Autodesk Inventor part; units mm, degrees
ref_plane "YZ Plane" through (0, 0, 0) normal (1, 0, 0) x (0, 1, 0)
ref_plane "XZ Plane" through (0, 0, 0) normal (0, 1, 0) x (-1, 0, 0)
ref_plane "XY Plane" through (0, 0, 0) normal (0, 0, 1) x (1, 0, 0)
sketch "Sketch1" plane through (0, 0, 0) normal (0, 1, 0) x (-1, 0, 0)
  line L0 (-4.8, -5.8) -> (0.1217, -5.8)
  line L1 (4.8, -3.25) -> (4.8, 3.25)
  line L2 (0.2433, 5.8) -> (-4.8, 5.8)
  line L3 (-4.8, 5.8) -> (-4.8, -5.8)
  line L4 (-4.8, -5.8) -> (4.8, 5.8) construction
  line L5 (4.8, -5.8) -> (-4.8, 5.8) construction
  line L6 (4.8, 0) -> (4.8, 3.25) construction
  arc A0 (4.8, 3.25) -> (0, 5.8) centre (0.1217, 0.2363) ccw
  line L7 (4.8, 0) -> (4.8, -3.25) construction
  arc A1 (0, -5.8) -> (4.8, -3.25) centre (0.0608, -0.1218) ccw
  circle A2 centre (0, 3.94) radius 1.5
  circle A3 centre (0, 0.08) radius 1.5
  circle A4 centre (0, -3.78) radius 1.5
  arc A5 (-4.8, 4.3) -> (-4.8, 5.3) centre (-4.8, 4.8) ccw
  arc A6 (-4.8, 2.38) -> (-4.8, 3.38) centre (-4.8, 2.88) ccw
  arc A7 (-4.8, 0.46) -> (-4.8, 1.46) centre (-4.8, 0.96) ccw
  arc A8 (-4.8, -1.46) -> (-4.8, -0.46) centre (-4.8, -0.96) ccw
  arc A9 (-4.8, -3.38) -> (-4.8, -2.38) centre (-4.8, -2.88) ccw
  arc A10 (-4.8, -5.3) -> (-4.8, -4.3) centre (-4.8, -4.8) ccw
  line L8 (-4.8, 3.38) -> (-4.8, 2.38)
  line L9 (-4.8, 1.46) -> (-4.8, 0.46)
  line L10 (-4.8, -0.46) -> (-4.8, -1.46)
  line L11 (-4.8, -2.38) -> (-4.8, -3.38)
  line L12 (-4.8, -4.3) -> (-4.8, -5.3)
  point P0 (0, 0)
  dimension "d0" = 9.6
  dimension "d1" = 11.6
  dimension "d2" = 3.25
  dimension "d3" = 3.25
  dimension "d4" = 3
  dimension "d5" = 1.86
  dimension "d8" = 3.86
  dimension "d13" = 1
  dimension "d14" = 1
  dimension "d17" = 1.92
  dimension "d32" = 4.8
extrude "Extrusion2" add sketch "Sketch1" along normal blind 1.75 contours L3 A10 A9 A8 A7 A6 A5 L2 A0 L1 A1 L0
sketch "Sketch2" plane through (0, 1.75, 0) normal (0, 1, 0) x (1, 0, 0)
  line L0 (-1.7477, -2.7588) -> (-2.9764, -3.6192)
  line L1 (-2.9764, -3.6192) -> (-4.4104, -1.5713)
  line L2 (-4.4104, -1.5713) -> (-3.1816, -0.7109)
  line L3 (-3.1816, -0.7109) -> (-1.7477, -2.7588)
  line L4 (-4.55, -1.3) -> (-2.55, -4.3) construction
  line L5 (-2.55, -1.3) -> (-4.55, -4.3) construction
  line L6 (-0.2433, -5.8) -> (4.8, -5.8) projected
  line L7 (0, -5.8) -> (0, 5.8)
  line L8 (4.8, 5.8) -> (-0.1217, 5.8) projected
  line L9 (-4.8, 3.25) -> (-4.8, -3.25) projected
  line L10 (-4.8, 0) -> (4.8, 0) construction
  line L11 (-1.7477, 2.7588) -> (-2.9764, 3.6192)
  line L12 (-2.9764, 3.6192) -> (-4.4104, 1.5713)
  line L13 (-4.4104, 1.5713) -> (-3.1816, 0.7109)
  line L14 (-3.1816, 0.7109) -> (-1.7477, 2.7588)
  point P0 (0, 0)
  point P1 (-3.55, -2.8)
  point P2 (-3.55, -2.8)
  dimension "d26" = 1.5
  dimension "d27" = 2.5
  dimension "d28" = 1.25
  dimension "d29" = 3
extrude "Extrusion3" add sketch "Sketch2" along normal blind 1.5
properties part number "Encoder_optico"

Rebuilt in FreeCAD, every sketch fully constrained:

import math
import FreeCAD as App
import Part
import Sketcher

V = App.Vector
Q = App.Units.Quantity

doc = App.newDocument("Part")
body = doc.addObject("PartDesign::Body", "Body")

# Sketch on XZ plane
sketch1 = body.newObject("Sketcher::SketchObject", "Sketch")
sketch1.AttachmentSupport = (doc.getObject("XZ_Plane"), [""])
sketch1.MapMode = "FlatFace"
sketch1.addGeometry(Part.LineSegment(V(4.8, -5.3, 0), V(4.8, -5.8, 0)), False)
sketch1.addGeometry(Part.LineSegment(V(4.8, -5.8, 0), V(-0.1217, -5.8, 0)), False)
sketch1.addGeometry(Part.ArcOfCircle(Part.Circle(V(-0.0608, -0.1218, 0), V(0, 0, 1), 5.678526), math.radians(-146.572427), math.radians(-90.614487)), False)
sketch1.addGeometry(Part.LineSegment(V(-4.8, -3.25, 0), V(-4.8, 3.25, 0)), False)
sketch1.addGeometry(Part.ArcOfCircle(Part.Circle(V(-0.1217, 0.2363, 0), V(0, 0, 1), 5.564969), math.radians(91.252055), math.radians(147.210892)), False)
sketch1.addGeometry(Part.LineSegment(V(-0.2433, 5.8, 0), V(4.8, 5.8, 0)), False)
sketch1.addGeometry(Part.LineSegment(V(4.8, 5.8, 0), V(4.8, 5.3, 0)), False)
sketch1.addGeometry(Part.ArcOfCircle(Part.Circle(V(4.8, 4.8, 0), V(0, 0, 1), 0.5), math.radians(90), math.radians(270)), False)
sketch1.addGeometry(Part.LineSegment(V(4.8, 4.3, 0), V(4.8, 3.38, 0)), False)
sketch1.addGeometry(Part.ArcOfCircle(Part.Circle(V(4.8, 2.88, 0), V(0, 0, 1), 0.5), math.radians(90), math.radians(270)), False)
sketch1.addGeometry(Part.LineSegment(V(4.8, 2.38, 0), V(4.8, 1.46, 0)), False)
sketch1.addGeometry(Part.ArcOfCircle(Part.Circle(V(4.8, 0.96, 0), V(0, 0, 1), 0.5), math.radians(90), math.radians(270)), False)
sketch1.addGeometry(Part.LineSegment(V(4.8, 0.46, 0), V(4.8, -0.46, 0)), False)
sketch1.addGeometry(Part.ArcOfCircle(Part.Circle(V(4.8, -0.96, 0), V(0, 0, 1), 0.5), math.radians(90), math.radians(270)), False)
sketch1.addGeometry(Part.LineSegment(V(4.8, -1.46, 0), V(4.8, -2.38, 0)), False)
sketch1.addGeometry(Part.ArcOfCircle(Part.Circle(V(4.8, -2.88, 0), V(0, 0, 1), 0.5), math.radians(90), math.radians(270)), False)
sketch1.addGeometry(Part.LineSegment(V(4.8, -3.38, 0), V(4.8, -4.3, 0)), False)
sketch1.addGeometry(Part.ArcOfCircle(Part.Circle(V(4.8, -4.8, 0), V(0, 0, 1), 0.5), math.radians(90), math.radians(270)), False)
sketch1.addGeometry(Part.Circle(V(0, -3.78, 0), V(0, 0, 1), 1.5), False)
sketch1.addGeometry(Part.Circle(V(0, 0.08, 0), V(0, 0, 1), 1.5), False)
sketch1.addGeometry(Part.Circle(V(0, 3.94, 0), V(0, 0, 1), 1.5), False)
sketch1.addConstraint(Sketcher.Constraint("Coincident", 0, 2, 1, 1))
sketch1.addConstraint(Sketcher.Constraint("Coincident", 1, 2, 2, 2))
sketch1.addConstraint(Sketcher.Constraint("Coincident", 2, 1, 3, 1))
sketch1.addConstraint(Sketcher.Constraint("Coincident", 3, 2, 4, 2))
sketch1.addConstraint(Sketcher.Constraint("Coincident", 4, 1, 5, 1))
sketch1.addConstraint(Sketcher.Constraint("Coincident", 5, 2, 6, 1))
sketch1.addConstraint(Sketcher.Constraint("Coincident", 6, 2, 7, 1))
sketch1.addConstraint(Sketcher.Constraint("Coincident", 7, 2, 8, 1))
sketch1.addConstraint(Sketcher.Constraint("Coincident", 8, 2, 9, 1))
sketch1.addConstraint(Sketcher.Constraint("Coincident", 9, 2, 10, 1))
sketch1.addConstraint(Sketcher.Constraint("Coincident", 10, 2, 11, 1))
sketch1.addConstraint(Sketcher.Constraint("Coincident", 11, 2, 12, 1))
sketch1.addConstraint(Sketcher.Constraint("Coincident", 12, 2, 13, 1))
sketch1.addConstraint(Sketcher.Constraint("Coincident", 13, 2, 14, 1))
sketch1.addConstraint(Sketcher.Constraint("Coincident", 14, 2, 15, 1))
sketch1.addConstraint(Sketcher.Constraint("Coincident", 15, 2, 16, 1))
sketch1.addConstraint(Sketcher.Constraint("Coincident", 16, 2, 17, 1))
sketch1.addConstraint(Sketcher.Constraint("Coincident", 17, 2, 0, 1))
sketch1.addConstraint(Sketcher.Constraint("Vertical", 0))
sketch1.addConstraint(Sketcher.Constraint("Horizontal", 1))
sketch1.addConstraint(Sketcher.Constraint("Vertical", 3))
sketch1.addConstraint(Sketcher.Constraint("Horizontal", 5))
sketch1.addConstraint(Sketcher.Constraint("Vertical", 6))
sketch1.addConstraint(Sketcher.Constraint("Vertical", 8))
sketch1.addConstraint(Sketcher.Constraint("Vertical", 10))
sketch1.addConstraint(Sketcher.Constraint("Vertical", 12))
sketch1.addConstraint(Sketcher.Constraint("Vertical", 14))
sketch1.addConstraint(Sketcher.Constraint("Vertical", 16))
sketch1.addConstraint(Sketcher.Constraint("PointOnObject", 18, 3, -2))
sketch1.addConstraint(Sketcher.Constraint("PointOnObject", 19, 3, -2))
sketch1.addConstraint(Sketcher.Constraint("PointOnObject", 20, 3, -2))
sketch1.addConstraint(Sketcher.Constraint("Diameter", 18, Q("3 mm")))
sketch1.addConstraint(Sketcher.Constraint("Diameter", 19, Q("3 mm")))
sketch1.addConstraint(Sketcher.Constraint("Diameter", 20, Q("3 mm")))
sketch1.addConstraint(Sketcher.Constraint("Radius", 7, Q("0.5 mm")))
sketch1.addConstraint(Sketcher.Constraint("Radius", 9, Q("0.5 mm")))
sketch1.addConstraint(Sketcher.Constraint("Radius", 11, Q("0.5 mm")))
sketch1.addConstraint(Sketcher.Constraint("Radius", 13, Q("0.5 mm")))
sketch1.addConstraint(Sketcher.Constraint("Radius", 15, Q("0.5 mm")))
sketch1.addConstraint(Sketcher.Constraint("Radius", 17, Q("0.5 mm")))
sketch1.addConstraint(Sketcher.Constraint("DistanceY", 0, 2, 17, 3, Q("1 mm")))
sketch1.addConstraint(Sketcher.Constraint("DistanceY", 7, 3, 4, 1, Q("1 mm")))
sketch1.addConstraint(Sketcher.Constraint("DistanceX", -1, 1, 7, 3, Q("4.8 mm")))
sketch1.addConstraint(Sketcher.Constraint("DistanceY", -1, 1, 7, 3, Q("4.8 mm")))
sketch1.addConstraint(Sketcher.Constraint("DistanceX", -1, 1, 9, 3, Q("4.8 mm")))
sketch1.addConstraint(Sketcher.Constraint("DistanceX", -1, 1, 11, 3, Q("4.8 mm")))
sketch1.addConstraint(Sketcher.Constraint("DistanceX", -1, 1, 13, 3, Q("4.8 mm")))
sketch1.addConstraint(Sketcher.Constraint("DistanceX", -1, 1, 15, 3, Q("4.8 mm")))
sketch1.addConstraint(Sketcher.Constraint("DistanceX", -1, 1, 17, 3, Q("4.8 mm")))
sketch1.addConstraint(Sketcher.Constraint("DistanceY", 17, 3, -1, 1, Q("4.8 mm")))
sketch1.addConstraint(Sketcher.Constraint("DistanceX", -1, 1, 0, 2, Q("4.8 mm")))
sketch1.addConstraint(Sketcher.Constraint("DistanceX", 2, 1, -1, 1, Q("4.8 mm")))
sketch1.addConstraint(Sketcher.Constraint("DistanceX", -1, 1, 5, 2, Q("4.8 mm")))
sketch1.addConstraint(Sketcher.Constraint("DistanceX", -1, 1, 7, 2, Q("4.8 mm")))
sketch1.addConstraint(Sketcher.Constraint("DistanceX", -1, 1, 9, 2, Q("4.8 mm")))
sketch1.addConstraint(Sketcher.Constraint("DistanceX", -1, 1, 11, 2, Q("4.8 mm")))
sketch1.addConstraint(Sketcher.Constraint("DistanceX", -1, 1, 13, 2, Q("4.8 mm")))
sketch1.addConstraint(Sketcher.Constraint("DistanceX", -1, 1, 15, 2, Q("4.8 mm")))
sketch1.addConstraint(Sketcher.Constraint("DistanceY", 2, 1, -1, 1, Q("3.25 mm")))
sketch1.addConstraint(Sketcher.Constraint("DistanceY", -1, 1, 3, 2, Q("3.25 mm")))
sketch1.addConstraint(Sketcher.Constraint("DistanceY", 9, 3, 7, 3, Q("1.92 mm")))
sketch1.addConstraint(Sketcher.Constraint("DistanceY", 11, 3, 9, 3, Q("1.92 mm")))
sketch1.addConstraint(Sketcher.Constraint("DistanceY", 13, 3, 11, 3, Q("1.92 mm")))
sketch1.addConstraint(Sketcher.Constraint("DistanceY", 15, 3, 13, 3, Q("1.92 mm")))
sketch1.addConstraint(Sketcher.Constraint("DistanceY", 18, 3, 19, 3, Q("3.86 mm")))
sketch1.addConstraint(Sketcher.Constraint("DistanceY", 19, 3, 20, 3, Q("3.86 mm")))
sketch1.addConstraint(Sketcher.Constraint("DistanceY", 20, 3, 4, 1, Q("1.86 mm")))
sketch1.addConstraint(Sketcher.Constraint("Radius", 4, Q("5.565 mm")))
sketch1.addConstraint(Sketcher.Constraint("Radius", 2, Q("5.6785 mm")))
sketch1.addConstraint(Sketcher.Constraint("DistanceX", 1, 2, 1, 1, Q("4.9217 mm")))
sketch1.addConstraint(Sketcher.Constraint("DistanceX", 5, 1, 5, 2, Q("5.0433 mm")))
pad1 = body.newObject("PartDesign::Pad", "Pad")
pad1.Profile = sketch1
pad1.Length = 1.75
pad1.Reversed = True

# Sketch on XZ plane
sketch2 = body.newObject("Sketcher::SketchObject", "Sketch001")
sketch2.AttachmentSupport = (doc.getObject("XZ_Plane"), [""])
sketch2.MapMode = "FlatFace"
sketch2.AttachmentOffset = App.Placement(V(0, 0, -1.75), App.Rotation())
sketch2.addGeometry(Part.LineSegment(V(-3, 3.6, 0), V(-1.7, 2.8, 0)), False)
sketch2.addGeometry(Part.LineSegment(V(-1.7, 2.8, 0), V(-3.2, 0.7, 0)), False)
sketch2.addGeometry(Part.LineSegment(V(-3.2, 0.7, 0), V(-4.4, 1.6, 0)), False)
sketch2.addGeometry(Part.LineSegment(V(-4.4, 1.6, 0), V(-3, 3.6, 0)), False)
sketch2.addGeometry(Part.LineSegment(V(-3.2, -0.7, 0), V(-1.7, -2.8, 0)), False)
sketch2.addGeometry(Part.LineSegment(V(-1.7, -2.8, 0), V(-3, -3.6, 0)), False)
sketch2.addGeometry(Part.LineSegment(V(-3, -3.6, 0), V(-4.4, -1.6, 0)), False)
sketch2.addGeometry(Part.LineSegment(V(-4.4, -1.6, 0), V(-3.2, -0.7, 0)), False)
sketch2.addConstraint(Sketcher.Constraint("Coincident", 0, 2, 1, 1))
sketch2.addConstraint(Sketcher.Constraint("Coincident", 1, 2, 2, 1))
sketch2.addConstraint(Sketcher.Constraint("Coincident", 2, 2, 3, 1))
sketch2.addConstraint(Sketcher.Constraint("Coincident", 3, 2, 0, 1))
sketch2.addConstraint(Sketcher.Constraint("Coincident", 4, 2, 5, 1))
sketch2.addConstraint(Sketcher.Constraint("Coincident", 5, 2, 6, 1))
sketch2.addConstraint(Sketcher.Constraint("Coincident", 6, 2, 7, 1))
sketch2.addConstraint(Sketcher.Constraint("Coincident", 7, 2, 4, 1))
sketch2.addConstraint(Sketcher.Constraint("Symmetric", 0, 2, 4, 2, -1))
sketch2.addConstraint(Sketcher.Constraint("Symmetric", 3, 2, 5, 2, -1))
sketch2.addConstraint(Sketcher.Constraint("Symmetric", 2, 2, 6, 2, -1))
sketch2.addConstraint(Sketcher.Constraint("Symmetric", 1, 2, 7, 2, -1))
sketch2.addConstraint(Sketcher.Constraint("Perpendicular", 0, 1))
sketch2.addConstraint(Sketcher.Constraint("Perpendicular", 1, 2))
sketch2.addConstraint(Sketcher.Constraint("Perpendicular", 2, 3))
sketch2.addConstraint(Sketcher.Constraint("Distance", 0, Q("1.5 mm")))
sketch2.addConstraint(Sketcher.Constraint("Distance", 1, Q("2.5 mm")))
sketch2.addConstraint(Sketcher.Constraint("Angle", 1, Q("-124.999 deg")))
sketch2.addConstraint(Sketcher.Constraint("DistanceY", 4, 2, 2, 2, Q("4.33 mm")))
sketch2.addConstraint(Sketcher.Constraint("DistanceX", 0, 2, -1, 1, Q("1.7477 mm")))
pad2 = body.newObject("PartDesign::Pad", "Pad001")
pad2.Profile = sketch2
pad2.Length = 1.5
pad2.Reversed = True

doc.recompute()
